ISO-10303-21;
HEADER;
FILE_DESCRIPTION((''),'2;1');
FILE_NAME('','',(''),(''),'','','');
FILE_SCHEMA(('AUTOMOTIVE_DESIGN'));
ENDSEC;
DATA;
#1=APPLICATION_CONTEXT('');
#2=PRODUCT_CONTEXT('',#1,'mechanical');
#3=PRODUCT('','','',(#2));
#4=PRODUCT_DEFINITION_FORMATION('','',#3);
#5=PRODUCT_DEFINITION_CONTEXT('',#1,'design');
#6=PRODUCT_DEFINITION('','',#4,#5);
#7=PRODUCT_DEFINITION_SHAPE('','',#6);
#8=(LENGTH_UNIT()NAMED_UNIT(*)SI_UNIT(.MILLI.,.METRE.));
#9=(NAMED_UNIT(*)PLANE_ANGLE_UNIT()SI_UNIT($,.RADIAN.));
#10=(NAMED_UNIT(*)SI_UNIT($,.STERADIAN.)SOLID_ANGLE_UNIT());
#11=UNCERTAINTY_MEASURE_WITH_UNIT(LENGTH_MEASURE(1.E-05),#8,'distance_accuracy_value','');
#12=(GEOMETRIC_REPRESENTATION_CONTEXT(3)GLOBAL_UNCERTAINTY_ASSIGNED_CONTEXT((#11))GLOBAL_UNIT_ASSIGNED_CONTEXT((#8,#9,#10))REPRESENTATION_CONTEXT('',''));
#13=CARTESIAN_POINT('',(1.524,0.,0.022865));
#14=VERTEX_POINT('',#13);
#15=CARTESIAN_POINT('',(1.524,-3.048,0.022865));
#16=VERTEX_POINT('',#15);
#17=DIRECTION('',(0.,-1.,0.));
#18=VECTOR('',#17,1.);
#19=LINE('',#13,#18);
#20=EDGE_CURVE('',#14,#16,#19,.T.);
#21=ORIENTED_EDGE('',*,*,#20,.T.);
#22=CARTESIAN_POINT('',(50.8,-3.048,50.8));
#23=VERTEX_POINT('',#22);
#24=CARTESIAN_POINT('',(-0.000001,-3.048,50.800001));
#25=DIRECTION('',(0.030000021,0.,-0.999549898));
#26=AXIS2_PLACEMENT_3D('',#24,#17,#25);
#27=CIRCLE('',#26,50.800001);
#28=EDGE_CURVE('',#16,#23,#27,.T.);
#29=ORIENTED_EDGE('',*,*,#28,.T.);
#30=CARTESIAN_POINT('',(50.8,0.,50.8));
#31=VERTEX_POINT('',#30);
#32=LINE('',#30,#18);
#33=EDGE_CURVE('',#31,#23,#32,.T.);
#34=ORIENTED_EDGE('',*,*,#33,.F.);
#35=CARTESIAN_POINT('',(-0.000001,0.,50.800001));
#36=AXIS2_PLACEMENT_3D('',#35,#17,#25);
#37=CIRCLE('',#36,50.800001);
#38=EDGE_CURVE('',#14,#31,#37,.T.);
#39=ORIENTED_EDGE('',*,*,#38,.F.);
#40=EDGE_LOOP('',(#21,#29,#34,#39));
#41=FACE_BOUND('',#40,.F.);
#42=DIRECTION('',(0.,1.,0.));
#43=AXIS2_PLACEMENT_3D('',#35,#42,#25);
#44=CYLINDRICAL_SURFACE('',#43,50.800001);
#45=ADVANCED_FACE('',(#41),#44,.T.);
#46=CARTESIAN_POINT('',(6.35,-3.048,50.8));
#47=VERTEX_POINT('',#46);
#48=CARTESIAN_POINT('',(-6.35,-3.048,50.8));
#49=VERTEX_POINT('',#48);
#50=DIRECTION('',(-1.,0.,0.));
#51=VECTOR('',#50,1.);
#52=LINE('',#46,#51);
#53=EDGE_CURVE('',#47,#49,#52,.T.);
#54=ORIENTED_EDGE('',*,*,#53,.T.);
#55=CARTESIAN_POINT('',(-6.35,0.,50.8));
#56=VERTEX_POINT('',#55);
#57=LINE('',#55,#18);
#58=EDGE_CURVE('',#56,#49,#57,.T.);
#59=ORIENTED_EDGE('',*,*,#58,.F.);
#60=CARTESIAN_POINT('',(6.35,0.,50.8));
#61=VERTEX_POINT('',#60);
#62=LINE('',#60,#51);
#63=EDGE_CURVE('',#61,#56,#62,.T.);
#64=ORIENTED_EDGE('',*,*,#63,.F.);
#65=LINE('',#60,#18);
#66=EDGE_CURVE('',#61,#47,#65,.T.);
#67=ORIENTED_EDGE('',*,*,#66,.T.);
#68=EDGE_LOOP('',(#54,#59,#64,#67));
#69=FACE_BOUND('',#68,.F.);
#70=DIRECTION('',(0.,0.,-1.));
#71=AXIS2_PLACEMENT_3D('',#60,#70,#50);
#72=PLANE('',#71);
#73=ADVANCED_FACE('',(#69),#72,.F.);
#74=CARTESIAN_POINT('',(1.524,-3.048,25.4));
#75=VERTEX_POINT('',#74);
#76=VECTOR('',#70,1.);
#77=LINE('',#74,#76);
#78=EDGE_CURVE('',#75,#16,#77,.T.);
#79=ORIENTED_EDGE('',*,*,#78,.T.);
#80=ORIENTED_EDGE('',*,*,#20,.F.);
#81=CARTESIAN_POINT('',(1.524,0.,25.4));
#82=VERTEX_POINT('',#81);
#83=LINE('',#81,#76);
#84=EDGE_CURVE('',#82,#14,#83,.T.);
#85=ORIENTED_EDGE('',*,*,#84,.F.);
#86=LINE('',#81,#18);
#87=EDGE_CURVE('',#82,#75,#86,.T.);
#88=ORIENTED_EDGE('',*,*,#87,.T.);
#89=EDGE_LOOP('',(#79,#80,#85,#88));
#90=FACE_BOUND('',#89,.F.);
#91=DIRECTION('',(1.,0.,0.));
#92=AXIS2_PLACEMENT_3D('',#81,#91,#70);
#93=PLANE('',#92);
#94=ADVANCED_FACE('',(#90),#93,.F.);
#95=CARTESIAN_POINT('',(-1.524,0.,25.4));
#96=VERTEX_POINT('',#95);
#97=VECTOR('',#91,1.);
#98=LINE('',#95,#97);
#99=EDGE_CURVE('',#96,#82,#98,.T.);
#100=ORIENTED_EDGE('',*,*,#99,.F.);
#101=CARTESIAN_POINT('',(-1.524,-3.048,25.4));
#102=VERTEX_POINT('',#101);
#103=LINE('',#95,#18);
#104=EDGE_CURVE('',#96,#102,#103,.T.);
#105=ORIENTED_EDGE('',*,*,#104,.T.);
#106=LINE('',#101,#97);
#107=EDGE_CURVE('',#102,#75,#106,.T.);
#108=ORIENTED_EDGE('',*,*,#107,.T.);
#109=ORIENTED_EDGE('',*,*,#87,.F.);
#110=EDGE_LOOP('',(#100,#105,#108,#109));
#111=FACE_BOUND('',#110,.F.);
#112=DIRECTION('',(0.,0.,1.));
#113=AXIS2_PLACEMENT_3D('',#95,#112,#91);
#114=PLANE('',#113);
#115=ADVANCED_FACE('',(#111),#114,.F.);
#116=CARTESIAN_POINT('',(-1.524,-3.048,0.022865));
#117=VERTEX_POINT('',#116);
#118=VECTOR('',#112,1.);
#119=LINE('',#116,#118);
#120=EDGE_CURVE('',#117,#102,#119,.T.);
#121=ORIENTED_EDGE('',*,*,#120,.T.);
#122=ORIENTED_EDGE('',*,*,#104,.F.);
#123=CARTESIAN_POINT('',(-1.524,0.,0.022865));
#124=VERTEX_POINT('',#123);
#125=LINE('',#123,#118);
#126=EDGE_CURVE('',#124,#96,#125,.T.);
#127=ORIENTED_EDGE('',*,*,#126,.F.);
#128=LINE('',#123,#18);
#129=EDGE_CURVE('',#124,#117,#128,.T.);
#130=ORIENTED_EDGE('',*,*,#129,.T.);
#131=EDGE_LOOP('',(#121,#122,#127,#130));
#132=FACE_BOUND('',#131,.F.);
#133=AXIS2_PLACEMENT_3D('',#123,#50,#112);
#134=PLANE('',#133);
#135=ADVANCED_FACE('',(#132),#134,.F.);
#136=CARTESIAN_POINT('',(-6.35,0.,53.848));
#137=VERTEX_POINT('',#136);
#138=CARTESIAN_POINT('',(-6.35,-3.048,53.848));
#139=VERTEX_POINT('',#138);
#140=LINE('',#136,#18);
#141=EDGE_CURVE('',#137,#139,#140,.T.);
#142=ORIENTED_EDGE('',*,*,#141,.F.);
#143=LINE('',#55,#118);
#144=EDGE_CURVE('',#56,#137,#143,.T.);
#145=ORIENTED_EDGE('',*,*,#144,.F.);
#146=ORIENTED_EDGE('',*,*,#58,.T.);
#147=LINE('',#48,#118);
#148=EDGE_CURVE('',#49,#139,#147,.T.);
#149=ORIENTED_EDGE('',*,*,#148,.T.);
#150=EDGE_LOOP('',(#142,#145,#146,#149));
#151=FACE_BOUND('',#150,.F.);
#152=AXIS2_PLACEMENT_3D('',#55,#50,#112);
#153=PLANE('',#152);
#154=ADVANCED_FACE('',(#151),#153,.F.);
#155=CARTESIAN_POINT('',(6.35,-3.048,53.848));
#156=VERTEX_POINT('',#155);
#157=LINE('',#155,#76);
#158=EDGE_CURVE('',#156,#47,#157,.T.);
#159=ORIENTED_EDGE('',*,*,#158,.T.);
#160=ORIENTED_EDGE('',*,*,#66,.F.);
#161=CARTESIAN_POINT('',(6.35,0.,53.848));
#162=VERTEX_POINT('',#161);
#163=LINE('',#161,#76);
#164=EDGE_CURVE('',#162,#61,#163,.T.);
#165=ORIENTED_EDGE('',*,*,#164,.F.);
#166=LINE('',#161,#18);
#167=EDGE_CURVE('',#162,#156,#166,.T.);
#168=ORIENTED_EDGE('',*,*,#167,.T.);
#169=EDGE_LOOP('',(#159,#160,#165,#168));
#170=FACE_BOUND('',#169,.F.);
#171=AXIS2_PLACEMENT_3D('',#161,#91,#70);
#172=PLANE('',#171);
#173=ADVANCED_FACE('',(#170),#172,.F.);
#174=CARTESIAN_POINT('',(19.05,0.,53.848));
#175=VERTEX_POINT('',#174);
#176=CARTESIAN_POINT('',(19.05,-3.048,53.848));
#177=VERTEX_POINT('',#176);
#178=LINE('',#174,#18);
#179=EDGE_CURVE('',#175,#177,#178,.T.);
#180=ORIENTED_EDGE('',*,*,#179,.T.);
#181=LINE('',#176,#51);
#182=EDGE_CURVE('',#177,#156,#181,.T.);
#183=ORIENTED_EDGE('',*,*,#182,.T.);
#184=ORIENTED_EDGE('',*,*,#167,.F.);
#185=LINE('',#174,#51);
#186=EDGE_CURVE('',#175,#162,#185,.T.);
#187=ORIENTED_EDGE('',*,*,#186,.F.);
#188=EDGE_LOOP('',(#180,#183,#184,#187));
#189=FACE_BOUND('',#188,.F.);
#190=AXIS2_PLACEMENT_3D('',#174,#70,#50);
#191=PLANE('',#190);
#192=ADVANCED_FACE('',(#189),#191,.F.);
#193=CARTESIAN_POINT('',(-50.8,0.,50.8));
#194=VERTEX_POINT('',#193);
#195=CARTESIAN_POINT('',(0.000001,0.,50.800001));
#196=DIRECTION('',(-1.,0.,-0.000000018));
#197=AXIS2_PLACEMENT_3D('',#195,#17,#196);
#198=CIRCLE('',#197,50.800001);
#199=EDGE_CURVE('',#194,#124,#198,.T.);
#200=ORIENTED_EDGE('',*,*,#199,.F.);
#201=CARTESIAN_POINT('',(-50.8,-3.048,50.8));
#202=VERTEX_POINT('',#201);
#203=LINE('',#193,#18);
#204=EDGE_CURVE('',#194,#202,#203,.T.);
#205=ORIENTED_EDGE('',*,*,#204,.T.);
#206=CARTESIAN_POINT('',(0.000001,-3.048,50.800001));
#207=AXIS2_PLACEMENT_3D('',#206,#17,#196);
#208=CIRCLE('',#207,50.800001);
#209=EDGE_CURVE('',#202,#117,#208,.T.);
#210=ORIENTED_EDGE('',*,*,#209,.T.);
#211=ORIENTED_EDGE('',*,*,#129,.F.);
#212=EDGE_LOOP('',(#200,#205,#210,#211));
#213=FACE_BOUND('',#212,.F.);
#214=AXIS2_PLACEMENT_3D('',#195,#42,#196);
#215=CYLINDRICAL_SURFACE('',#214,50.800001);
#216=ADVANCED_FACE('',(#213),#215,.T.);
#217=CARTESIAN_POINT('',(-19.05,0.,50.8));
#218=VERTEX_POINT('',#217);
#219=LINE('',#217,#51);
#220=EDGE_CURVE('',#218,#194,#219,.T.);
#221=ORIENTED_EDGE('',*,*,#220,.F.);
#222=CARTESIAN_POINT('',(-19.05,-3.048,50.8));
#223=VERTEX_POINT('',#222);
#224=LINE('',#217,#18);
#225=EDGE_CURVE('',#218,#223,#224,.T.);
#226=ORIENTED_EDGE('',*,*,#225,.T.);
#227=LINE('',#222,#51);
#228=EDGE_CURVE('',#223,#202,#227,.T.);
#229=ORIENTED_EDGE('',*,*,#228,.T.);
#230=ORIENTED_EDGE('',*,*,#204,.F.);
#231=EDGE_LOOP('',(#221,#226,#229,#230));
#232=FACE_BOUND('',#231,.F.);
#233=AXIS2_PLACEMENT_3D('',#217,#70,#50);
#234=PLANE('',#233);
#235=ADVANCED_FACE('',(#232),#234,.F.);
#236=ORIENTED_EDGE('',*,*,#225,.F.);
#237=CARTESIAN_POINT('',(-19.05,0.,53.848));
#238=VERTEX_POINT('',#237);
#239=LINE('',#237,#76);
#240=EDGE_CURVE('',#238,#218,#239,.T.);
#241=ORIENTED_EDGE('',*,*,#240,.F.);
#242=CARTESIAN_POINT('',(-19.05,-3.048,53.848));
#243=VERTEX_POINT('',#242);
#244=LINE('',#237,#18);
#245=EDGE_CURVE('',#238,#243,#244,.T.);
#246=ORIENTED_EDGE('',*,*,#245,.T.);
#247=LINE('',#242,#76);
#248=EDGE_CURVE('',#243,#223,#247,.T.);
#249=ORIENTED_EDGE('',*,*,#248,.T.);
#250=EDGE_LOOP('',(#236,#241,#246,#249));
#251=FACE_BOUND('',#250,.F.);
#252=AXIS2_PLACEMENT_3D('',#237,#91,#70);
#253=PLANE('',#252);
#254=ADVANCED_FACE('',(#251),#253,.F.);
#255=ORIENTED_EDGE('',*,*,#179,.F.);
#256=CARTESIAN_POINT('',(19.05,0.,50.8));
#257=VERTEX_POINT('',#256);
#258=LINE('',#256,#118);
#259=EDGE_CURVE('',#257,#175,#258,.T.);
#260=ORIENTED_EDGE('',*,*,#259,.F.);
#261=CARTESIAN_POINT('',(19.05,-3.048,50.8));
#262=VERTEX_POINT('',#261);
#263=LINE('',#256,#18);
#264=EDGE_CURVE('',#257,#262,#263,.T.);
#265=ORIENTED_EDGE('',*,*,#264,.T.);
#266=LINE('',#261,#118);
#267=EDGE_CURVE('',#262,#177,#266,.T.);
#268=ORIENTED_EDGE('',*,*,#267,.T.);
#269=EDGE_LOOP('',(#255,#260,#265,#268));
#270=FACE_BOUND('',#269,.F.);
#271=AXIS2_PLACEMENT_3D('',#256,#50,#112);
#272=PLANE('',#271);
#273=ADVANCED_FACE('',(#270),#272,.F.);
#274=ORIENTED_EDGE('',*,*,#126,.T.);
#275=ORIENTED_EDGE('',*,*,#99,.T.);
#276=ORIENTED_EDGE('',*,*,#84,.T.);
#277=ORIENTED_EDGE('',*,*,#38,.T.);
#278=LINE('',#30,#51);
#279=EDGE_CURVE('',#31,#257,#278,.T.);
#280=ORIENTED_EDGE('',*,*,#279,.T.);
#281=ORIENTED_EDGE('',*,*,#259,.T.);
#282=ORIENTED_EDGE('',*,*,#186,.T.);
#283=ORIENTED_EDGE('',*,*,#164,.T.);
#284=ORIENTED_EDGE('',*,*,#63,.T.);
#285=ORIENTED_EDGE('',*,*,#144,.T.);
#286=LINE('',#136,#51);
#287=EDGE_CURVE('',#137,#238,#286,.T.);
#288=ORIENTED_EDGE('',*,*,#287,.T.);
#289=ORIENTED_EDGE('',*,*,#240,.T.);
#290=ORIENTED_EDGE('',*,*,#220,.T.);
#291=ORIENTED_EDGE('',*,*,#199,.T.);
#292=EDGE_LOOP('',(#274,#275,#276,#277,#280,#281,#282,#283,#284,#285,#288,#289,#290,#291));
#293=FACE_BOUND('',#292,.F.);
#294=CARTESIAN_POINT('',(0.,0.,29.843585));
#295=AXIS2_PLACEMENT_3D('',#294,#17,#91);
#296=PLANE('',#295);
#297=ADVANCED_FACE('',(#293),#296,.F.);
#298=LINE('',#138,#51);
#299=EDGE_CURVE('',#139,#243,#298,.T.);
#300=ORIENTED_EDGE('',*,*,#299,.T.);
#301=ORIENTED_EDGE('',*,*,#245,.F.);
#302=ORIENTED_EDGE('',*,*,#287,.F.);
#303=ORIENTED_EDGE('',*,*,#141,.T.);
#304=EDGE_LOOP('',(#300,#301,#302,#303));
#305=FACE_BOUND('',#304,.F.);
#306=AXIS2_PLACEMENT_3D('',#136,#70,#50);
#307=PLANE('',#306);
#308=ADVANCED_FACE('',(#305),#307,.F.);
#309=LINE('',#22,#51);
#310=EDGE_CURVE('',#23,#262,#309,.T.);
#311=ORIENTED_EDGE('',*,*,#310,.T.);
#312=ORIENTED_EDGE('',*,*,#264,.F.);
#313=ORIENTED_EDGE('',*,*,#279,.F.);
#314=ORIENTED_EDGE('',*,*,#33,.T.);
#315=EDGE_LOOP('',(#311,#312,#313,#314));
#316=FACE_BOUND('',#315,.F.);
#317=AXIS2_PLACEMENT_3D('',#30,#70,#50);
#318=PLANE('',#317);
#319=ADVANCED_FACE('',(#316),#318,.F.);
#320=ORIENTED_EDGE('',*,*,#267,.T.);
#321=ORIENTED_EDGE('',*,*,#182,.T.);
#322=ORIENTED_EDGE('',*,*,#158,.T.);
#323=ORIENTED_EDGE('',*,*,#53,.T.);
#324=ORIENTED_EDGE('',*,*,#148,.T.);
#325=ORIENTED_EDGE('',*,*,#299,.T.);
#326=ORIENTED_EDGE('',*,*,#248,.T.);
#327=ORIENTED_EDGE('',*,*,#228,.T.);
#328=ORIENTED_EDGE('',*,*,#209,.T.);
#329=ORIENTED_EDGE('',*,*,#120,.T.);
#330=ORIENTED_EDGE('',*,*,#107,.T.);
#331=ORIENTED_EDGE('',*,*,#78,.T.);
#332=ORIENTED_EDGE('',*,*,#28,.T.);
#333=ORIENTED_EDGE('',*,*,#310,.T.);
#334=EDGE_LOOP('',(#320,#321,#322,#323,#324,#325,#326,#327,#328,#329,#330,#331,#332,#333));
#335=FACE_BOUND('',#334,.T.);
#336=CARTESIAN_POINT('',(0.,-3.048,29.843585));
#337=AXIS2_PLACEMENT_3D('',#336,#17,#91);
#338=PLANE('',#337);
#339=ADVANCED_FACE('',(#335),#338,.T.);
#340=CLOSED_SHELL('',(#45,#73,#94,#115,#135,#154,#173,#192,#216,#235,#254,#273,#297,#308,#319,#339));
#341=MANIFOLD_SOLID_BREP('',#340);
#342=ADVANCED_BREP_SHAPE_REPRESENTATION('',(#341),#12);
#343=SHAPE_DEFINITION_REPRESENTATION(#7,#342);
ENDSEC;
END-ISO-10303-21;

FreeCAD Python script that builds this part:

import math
import FreeCAD as App
import Part
import Sketcher

V = App.Vector
Q = App.Units.Quantity

doc = App.newDocument("Part")
body = doc.addObject("PartDesign::Body", "Body")

sketch1 = body.newObject("Sketcher::SketchObject", "Sketch")
sketch1.AttachmentSupport = (doc.getObject("XZ_Plane"), [""])
sketch1.MapMode = "FlatFace"
sketch1.addGeometry([
    Part.LineSegment(V(-19.05, 50.8, 0), V(-50.8, 50.8, 0)),
    Part.ArcOfCircle(Part.Circle(V(0.000001, 50.800001, 0), V(0, 0, 1), 50.800001), math.radians(-179.999999), math.radians(-91.719133)),
    Part.LineSegment(V(-1.524, 0.022865, 0), V(-1.524, 25.4, 0)),
    Part.LineSegment(V(-1.524, 25.4, 0), V(1.524, 25.4, 0)),
    Part.LineSegment(V(1.524, 25.4, 0), V(1.524, 0.022865, 0)),
    Part.ArcOfCircle(Part.Circle(V(-0.000001, 50.800001, 0), V(0, 0, 1), 50.800001), math.radians(-88.280867), math.radians(-0.000001)),
    Part.LineSegment(V(50.8, 50.8, 0), V(19.05, 50.8, 0)),
    Part.LineSegment(V(19.05, 50.8, 0), V(19.05, 53.848, 0)),
    Part.LineSegment(V(19.05, 53.848, 0), V(6.35, 53.848, 0)),
    Part.LineSegment(V(6.35, 53.848, 0), V(6.35, 50.8, 0)),
    Part.LineSegment(V(6.35, 50.8, 0), V(-6.35, 50.8, 0)),
    Part.LineSegment(V(-6.35, 50.8, 0), V(-6.35, 53.848, 0)),
    Part.LineSegment(V(-6.35, 53.848, 0), V(-19.05, 53.848, 0)),
    Part.LineSegment(V(-19.05, 53.848, 0), V(-19.05, 50.8, 0)),
], False)
sketch1.addConstraint([
    Sketcher.Constraint("Coincident", 0, 2, 1, 1),
    Sketcher.Constraint("Coincident", 1, 2, 2, 1),
    Sketcher.Constraint("Coincident", 2, 2, 3, 1),
    Sketcher.Constraint("Coincident", 3, 2, 4, 1),
    Sketcher.Constraint("Coincident", 4, 2, 5, 1),
    Sketcher.Constraint("Coincident", 5, 2, 6, 1),
    Sketcher.Constraint("Coincident", 6, 2, 7, 1),
    Sketcher.Constraint("Coincident", 7, 2, 8, 1),
    Sketcher.Constraint("Coincident", 8, 2, 9, 1),
    Sketcher.Constraint("Coincident", 9, 2, 10, 1),
    Sketcher.Constraint("Coincident", 10, 2, 11, 1),
    Sketcher.Constraint("Coincident", 11, 2, 12, 1),
    Sketcher.Constraint("Coincident", 12, 2, 13, 1),
    Sketcher.Constraint("Coincident", 13, 2, 0, 1),
    Sketcher.Constraint("Horizontal", 0),
    Sketcher.Constraint("Vertical", 2),
    Sketcher.Constraint("Horizontal", 3),
    Sketcher.Constraint("Vertical", 4),
    Sketcher.Constraint("Horizontal", 6),
    Sketcher.Constraint("Vertical", 7),
    Sketcher.Constraint("Horizontal", 8),
    Sketcher.Constraint("Vertical", 9),
    Sketcher.Constraint("Horizontal", 10),
    Sketcher.Constraint("Vertical", 11),
    Sketcher.Constraint("Horizontal", 12),
    Sketcher.Constraint("Vertical", 13),
    Sketcher.Constraint("Coincident", 5, 3, 1, 3),
    Sketcher.Constraint("Equal", 1, 5),
    Sketcher.Constraint("Symmetric", 1, 2, 4, 2, -2),
    Sketcher.Constraint("Symmetric", 8, 2, 11, 2, -2),
    Sketcher.Constraint("Symmetric", 6, 2, 13, 2, -2),
    Sketcher.Constraint("Horizontal", 5, 3, 0, 2),
    Sketcher.Constraint("Horizontal", 6, 2, 9, 2),
    Sketcher.Constraint("Equal", 8, 10),
    Sketcher.Constraint("Equal", 3, 7),
    Sketcher.Constraint("Radius", 1, Q("2 in")),
    Sketcher.Constraint("DistanceX", 8, 2, 8, 1, Q("0.5 in")),
    Sketcher.Constraint("DistanceY", -1, 1, 1, 3, Q("2 in")),
    Sketcher.Constraint("DistanceY", -1, 1, 2, 2, Q("1 in")),
    Sketcher.Constraint("DistanceX", 3, 1, 3, 2, Q("0.12 in")),
])
pad1 = body.newObject("PartDesign::Pad", "Pad")
pad1.Profile = sketch1
pad1.Length = Q("0.12 in")

doc.recompute()
